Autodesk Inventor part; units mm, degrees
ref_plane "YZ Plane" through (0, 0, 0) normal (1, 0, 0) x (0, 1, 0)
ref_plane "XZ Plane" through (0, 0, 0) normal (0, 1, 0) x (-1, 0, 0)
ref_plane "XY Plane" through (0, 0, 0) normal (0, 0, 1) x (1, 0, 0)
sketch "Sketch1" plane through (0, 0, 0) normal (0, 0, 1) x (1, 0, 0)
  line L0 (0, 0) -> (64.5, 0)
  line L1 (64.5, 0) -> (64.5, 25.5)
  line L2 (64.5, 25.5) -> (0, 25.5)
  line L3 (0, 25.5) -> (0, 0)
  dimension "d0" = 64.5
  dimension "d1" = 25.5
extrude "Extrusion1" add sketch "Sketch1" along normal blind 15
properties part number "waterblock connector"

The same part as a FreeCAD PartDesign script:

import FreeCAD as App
import Part
import Sketcher

V = App.Vector

doc = App.newDocument("Part")
body = doc.addObject("PartDesign::Body", "Body")

# Sketch on XY plane
sketch1 = body.newObject("Sketcher::SketchObject", "Sketch")
sketch1.AttachmentSupport = (doc.getObject("XY_Plane"), [""])
sketch1.MapMode = "FlatFace"
sketch1.addGeometry([
    Part.LineSegment(V(0, 26, 0), V(0, 0, 0)),
    Part.LineSegment(V(0, 0, 0), V(64, 0, 0)),
    Part.LineSegment(V(64, 0, 0), V(64, 26, 0)),
    Part.LineSegment(V(64, 26, 0), V(0, 26, 0)),
], False)
sketch1.addConstraint([
    Sketcher.Constraint("Coincident", 0, 2, 1, 1),
    Sketcher.Constraint("Coincident", 1, 2, 2, 1),
    Sketcher.Constraint("Coincident", 2, 2, 3, 1),
    Sketcher.Constraint("Coincident", 3, 2, 0, 1),
    Sketcher.Constraint("Vertical", 0),
    Sketcher.Constraint("Horizontal", 1),
    Sketcher.Constraint("Vertical", 2),
    Sketcher.Constraint("Horizontal", 3),
    Sketcher.Constraint("Coincident", 0, 2, -1, 1),
    Sketcher.Constraint("DistanceX", 1, 1, 1, 2, 64.5),
    Sketcher.Constraint("DistanceY", 0, 2, 0, 1, 25.5),
])
pad1 = body.newObject("PartDesign::Pad", "Pad")
pad1.Profile = sketch1
pad1.Length = 15

doc.recompute()
